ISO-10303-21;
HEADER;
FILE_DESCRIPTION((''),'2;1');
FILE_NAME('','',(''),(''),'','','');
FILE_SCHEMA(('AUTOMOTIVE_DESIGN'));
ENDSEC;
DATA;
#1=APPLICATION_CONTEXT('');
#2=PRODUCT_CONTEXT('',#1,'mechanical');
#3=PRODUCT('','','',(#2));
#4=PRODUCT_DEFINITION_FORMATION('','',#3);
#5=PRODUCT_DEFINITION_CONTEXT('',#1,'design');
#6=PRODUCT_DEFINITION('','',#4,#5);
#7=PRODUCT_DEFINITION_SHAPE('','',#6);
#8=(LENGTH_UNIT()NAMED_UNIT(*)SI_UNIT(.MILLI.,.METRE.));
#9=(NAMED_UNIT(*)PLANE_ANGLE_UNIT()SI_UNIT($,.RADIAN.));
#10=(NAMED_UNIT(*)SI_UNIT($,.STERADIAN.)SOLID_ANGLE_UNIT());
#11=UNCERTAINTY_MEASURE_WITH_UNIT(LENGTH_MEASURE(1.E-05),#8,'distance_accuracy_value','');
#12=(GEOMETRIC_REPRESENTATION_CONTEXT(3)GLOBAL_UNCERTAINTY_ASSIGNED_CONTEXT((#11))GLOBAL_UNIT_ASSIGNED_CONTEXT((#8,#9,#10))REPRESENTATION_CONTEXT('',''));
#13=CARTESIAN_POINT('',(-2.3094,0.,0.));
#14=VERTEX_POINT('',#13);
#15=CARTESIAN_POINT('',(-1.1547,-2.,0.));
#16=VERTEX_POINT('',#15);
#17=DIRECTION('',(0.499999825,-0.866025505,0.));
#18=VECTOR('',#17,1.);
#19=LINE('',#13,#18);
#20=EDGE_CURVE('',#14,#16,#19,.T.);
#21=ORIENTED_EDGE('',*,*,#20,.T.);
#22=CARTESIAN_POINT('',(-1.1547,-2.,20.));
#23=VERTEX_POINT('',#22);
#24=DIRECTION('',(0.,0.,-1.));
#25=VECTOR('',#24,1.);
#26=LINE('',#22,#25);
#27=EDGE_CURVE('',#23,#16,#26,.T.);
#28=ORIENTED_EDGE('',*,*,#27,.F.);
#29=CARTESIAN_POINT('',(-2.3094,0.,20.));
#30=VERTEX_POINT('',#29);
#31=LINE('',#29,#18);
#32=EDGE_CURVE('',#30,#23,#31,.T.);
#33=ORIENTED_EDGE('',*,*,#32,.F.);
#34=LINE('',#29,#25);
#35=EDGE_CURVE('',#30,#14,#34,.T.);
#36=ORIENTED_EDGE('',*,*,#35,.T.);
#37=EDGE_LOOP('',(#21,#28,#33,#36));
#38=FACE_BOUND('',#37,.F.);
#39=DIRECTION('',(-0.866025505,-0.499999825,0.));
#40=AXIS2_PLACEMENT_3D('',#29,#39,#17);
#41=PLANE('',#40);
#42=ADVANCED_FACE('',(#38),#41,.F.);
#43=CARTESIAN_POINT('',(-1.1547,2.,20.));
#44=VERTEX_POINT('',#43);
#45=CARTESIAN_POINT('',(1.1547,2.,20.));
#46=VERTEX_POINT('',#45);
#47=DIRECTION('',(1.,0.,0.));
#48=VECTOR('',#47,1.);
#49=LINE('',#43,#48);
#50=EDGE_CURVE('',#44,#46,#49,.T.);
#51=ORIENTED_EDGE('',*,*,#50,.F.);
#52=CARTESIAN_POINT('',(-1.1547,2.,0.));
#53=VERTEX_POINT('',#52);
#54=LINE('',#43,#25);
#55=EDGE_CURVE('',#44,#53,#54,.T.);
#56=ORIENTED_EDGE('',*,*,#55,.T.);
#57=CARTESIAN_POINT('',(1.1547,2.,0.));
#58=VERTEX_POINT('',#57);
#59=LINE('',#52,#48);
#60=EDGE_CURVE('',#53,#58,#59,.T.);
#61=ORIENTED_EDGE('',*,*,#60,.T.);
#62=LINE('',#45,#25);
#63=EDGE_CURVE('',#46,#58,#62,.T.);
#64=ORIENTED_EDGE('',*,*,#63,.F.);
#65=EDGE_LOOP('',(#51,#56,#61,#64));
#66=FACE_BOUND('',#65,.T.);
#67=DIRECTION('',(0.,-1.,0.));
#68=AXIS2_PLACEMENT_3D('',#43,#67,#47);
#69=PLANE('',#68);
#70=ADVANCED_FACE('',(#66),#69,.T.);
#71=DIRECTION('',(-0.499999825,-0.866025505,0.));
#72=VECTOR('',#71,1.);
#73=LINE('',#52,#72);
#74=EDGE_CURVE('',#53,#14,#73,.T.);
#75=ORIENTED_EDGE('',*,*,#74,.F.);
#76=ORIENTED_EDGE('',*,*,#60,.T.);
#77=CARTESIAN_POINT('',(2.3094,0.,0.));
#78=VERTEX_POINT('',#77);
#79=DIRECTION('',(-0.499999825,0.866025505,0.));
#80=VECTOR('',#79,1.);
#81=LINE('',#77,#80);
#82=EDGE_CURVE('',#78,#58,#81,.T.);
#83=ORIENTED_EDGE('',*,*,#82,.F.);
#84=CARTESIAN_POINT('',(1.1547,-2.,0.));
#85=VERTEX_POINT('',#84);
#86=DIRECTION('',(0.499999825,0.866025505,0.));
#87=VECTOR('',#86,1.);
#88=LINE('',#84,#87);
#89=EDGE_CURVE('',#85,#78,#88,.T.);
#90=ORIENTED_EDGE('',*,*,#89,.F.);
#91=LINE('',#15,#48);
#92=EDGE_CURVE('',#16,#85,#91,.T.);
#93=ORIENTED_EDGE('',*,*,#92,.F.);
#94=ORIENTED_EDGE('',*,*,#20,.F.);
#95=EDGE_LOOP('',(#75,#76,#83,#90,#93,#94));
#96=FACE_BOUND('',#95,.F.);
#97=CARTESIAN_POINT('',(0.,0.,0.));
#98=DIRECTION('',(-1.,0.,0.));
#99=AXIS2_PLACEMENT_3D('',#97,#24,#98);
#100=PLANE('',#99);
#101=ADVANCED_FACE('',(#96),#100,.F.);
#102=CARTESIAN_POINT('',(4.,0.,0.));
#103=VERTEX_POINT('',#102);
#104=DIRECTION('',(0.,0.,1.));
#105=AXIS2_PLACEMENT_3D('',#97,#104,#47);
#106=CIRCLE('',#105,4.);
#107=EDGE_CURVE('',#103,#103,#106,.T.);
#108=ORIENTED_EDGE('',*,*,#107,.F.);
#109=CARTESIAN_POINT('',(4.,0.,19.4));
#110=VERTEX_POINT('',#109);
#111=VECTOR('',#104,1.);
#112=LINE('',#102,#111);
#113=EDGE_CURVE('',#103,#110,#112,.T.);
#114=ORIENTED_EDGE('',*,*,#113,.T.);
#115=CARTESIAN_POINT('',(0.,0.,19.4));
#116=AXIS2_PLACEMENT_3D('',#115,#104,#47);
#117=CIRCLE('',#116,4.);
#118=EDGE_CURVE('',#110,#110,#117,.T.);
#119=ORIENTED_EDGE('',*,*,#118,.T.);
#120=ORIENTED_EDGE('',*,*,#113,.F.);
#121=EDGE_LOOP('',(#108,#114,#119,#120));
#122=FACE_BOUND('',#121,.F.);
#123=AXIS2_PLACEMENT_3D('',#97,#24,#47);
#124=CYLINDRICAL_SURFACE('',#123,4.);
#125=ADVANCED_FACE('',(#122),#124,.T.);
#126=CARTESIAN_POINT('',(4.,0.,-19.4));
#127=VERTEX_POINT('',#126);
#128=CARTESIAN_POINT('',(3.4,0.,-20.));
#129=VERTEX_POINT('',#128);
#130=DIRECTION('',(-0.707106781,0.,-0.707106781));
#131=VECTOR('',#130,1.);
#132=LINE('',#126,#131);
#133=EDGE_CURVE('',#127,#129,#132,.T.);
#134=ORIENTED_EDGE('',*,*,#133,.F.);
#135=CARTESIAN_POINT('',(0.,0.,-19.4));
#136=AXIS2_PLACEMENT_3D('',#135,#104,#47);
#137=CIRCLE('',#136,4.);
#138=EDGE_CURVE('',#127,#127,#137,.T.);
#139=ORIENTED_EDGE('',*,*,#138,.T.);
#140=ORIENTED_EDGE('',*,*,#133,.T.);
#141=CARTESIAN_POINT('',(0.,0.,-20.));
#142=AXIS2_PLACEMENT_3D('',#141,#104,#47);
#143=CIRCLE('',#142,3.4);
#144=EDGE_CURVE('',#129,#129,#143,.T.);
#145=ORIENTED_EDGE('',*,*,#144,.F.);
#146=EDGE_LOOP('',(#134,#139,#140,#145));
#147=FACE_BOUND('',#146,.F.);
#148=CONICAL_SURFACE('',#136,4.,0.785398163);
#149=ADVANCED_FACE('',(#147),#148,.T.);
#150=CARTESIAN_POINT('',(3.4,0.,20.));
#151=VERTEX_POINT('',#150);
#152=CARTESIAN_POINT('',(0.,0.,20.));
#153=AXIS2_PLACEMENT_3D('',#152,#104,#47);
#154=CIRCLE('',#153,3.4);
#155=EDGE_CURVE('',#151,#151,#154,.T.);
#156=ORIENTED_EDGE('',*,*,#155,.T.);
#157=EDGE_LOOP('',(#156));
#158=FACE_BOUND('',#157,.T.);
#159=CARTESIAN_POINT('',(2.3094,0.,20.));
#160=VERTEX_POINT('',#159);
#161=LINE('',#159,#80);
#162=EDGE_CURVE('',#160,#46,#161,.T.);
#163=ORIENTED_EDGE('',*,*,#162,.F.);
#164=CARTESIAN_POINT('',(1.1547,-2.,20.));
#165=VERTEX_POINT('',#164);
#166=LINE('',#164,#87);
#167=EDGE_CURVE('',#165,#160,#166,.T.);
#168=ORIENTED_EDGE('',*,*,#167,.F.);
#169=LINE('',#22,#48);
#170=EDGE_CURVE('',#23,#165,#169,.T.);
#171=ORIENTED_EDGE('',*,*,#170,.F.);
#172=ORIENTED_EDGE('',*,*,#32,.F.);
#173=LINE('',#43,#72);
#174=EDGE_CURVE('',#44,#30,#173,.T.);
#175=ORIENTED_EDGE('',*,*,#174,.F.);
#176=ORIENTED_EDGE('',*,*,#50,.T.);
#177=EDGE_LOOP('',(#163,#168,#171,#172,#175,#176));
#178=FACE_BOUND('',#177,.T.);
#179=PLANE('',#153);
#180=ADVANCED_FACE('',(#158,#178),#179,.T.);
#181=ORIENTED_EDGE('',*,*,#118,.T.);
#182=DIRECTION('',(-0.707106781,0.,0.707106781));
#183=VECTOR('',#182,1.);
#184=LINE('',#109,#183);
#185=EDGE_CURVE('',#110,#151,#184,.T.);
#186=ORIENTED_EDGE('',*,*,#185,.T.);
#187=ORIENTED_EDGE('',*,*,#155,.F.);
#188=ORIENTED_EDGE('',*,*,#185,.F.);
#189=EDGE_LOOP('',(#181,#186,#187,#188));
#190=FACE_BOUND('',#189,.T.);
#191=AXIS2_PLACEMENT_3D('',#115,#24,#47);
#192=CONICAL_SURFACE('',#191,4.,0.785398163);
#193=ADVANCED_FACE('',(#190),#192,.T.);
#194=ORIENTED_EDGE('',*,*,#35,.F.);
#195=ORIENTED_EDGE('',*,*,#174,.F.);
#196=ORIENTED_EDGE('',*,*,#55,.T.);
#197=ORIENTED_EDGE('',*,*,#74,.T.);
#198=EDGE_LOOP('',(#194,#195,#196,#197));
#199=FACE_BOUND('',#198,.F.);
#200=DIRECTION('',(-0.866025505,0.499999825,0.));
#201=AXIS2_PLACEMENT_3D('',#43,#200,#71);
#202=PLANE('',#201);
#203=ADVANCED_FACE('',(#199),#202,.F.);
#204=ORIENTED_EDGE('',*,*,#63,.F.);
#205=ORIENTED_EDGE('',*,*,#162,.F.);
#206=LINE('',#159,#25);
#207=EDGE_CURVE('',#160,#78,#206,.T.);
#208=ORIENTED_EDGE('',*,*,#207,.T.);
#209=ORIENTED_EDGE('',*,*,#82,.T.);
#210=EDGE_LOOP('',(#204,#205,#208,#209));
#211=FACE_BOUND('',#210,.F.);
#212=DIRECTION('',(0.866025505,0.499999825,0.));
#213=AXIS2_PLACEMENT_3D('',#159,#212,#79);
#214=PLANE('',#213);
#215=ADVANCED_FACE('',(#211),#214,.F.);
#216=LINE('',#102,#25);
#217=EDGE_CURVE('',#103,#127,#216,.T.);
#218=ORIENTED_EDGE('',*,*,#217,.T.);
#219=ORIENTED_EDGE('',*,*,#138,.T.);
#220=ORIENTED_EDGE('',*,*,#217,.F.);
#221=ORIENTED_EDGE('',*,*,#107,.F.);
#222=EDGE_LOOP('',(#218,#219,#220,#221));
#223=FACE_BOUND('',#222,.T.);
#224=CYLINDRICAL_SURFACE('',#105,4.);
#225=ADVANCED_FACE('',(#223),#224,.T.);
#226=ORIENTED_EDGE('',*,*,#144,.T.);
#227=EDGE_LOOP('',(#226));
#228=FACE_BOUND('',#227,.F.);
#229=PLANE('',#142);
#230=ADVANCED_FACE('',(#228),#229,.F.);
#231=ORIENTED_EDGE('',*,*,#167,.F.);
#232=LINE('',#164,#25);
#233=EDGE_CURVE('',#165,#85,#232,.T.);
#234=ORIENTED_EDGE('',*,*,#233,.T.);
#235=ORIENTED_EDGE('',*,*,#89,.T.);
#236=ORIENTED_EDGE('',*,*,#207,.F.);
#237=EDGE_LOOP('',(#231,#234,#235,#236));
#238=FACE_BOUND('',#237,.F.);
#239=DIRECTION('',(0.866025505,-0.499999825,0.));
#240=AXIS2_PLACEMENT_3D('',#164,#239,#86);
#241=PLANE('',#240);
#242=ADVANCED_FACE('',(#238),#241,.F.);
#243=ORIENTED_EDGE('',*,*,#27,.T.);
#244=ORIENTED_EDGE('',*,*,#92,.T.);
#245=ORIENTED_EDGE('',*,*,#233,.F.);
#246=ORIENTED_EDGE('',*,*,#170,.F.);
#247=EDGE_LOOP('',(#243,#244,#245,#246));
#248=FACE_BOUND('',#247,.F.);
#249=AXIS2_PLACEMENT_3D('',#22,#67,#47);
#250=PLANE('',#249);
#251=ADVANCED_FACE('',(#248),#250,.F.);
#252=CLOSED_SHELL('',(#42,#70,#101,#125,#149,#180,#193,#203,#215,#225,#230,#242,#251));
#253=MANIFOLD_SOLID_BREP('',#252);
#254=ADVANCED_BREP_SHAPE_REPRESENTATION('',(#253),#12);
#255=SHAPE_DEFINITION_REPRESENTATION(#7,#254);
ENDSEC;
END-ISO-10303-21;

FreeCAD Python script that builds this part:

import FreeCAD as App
import Part
import Sketcher
Q = App.Units.Quantity


def edges_at(feature, points):
    """Names of the edges that pass closest to the given points."""
    edges = feature.Shape.Edges
    near = lambda p: min(range(len(edges)), key=lambda i: edges[i].distToShape(Part.Vertex(*p))[0])
    return sorted({f"Edge{near(p) + 1}" for p in points})

doc = App.newDocument("Part")
params = doc.addObject("Spreadsheet::Sheet", "Params")
for row, (alias, value) in enumerate([
    ("sketch1_diameter", "8 mm"),
    ("pad1_length", "40 mm"),
    ("chamfer_size", "0.6 mm"),
    ("pocket1_length", "20 mm"),
], start=1):
    params.set(f"A{row}", alias)
    params.set(f"B{row}", "=" + value)
    params.setAlias(f"B{row}", alias)

body = doc.addObject("PartDesign::Body", "Body")

sketch1 = body.newObject("Sketcher::SketchObject", "Sketch")
sketch1.AttachmentSupport = (doc.getObject("XY_Plane"), [""])
sketch1.MapMode = "FlatFace"
sketch1.addGeometry(Part.Circle(App.Vector(0, 0, 0), App.Vector(0, 0, 1), 4), False)
sketch1.addConstraint([
    Sketcher.Constraint("Coincident", 0, 3, -1, 1),
    Sketcher.Constraint("Diameter", 0, 8.0),
])
sketch1.setExpression("Constraints[1]", "Params.sketch1_diameter")
pad1 = body.newObject("PartDesign::Pad", "Pad")
pad1.Profile = sketch1
pad1.setExpression("Length", "Params.pad1_length")
pad1.Midplane = True
doc.recompute()

chamfer = body.newObject("PartDesign::Chamfer", "Chamfer")
chamfer.Base = (pad1, edges_at(pad1, [(-4, 0, -20), (-4, 0, 20)]))
chamfer.setExpression("Size", "Params.chamfer_size")

sketch2 = body.newObject("Sketcher::SketchObject", "Sketch001")
sketch2.AttachmentSupport = (doc.getObject("XY_Plane"), [""])
sketch2.MapMode = "FlatFace"
sketch2.AttachmentOffset = App.Placement(App.Vector(0, 0, 20), App.Rotation())
sketch2.addGeometry([
    Part.LineSegment(App.Vector(1.2, 2, 0), App.Vector(-1.2, 2, 0)),
    Part.LineSegment(App.Vector(-1.2, 2, 0), App.Vector(-2.3, 0, 0)),
    Part.LineSegment(App.Vector(-2.3, 0, 0), App.Vector(-1.2, -2, 0)),
    Part.LineSegment(App.Vector(-1.2, -2, 0), App.Vector(1.2, -2, 0)),
    Part.LineSegment(App.Vector(1.2, -2, 0), App.Vector(2.3, 0, 0)),
    Part.LineSegment(App.Vector(2.3, 0, 0), App.Vector(1.2, 2, 0)),
], False)
sketch2.addConstraint([
    Sketcher.Constraint("Coincident", 0, 2, 1, 1),
    Sketcher.Constraint("Coincident", 1, 2, 2, 1),
    Sketcher.Constraint("Coincident", 2, 2, 3, 1),
    Sketcher.Constraint("Coincident", 3, 2, 4, 1),
    Sketcher.Constraint("Coincident", 4, 2, 5, 1),
    Sketcher.Constraint("Coincident", 5, 2, 0, 1),
    Sketcher.Constraint("Horizontal", 0),
    Sketcher.Constraint("Horizontal", 3),
    Sketcher.Constraint("Symmetric", 0, 2, 3, 2, -1, 1),
    Sketcher.Constraint("Symmetric", 1, 2, 4, 2, -1, 1),
    Sketcher.Constraint("PointOnObject", 1, 2, -1),
    Sketcher.Constraint("Parallel", 2, 5),
    Sketcher.Constraint("Vertical", 0, 2, 2, 2),
    Sketcher.Constraint("Angle", 1, Q("-120 deg")),
    Sketcher.Constraint("DistanceY", -1, 1, 0, 2, 2.0),
    Sketcher.Constraint("DistanceX", 0, 2, 0, 1, 2.3094),
])
pocket1 = body.newObject("PartDesign::Pocket", "Pocket")
pocket1.Profile = sketch2
pocket1.setExpression("Length", "Params.pocket1_length")

doc.recompute()
